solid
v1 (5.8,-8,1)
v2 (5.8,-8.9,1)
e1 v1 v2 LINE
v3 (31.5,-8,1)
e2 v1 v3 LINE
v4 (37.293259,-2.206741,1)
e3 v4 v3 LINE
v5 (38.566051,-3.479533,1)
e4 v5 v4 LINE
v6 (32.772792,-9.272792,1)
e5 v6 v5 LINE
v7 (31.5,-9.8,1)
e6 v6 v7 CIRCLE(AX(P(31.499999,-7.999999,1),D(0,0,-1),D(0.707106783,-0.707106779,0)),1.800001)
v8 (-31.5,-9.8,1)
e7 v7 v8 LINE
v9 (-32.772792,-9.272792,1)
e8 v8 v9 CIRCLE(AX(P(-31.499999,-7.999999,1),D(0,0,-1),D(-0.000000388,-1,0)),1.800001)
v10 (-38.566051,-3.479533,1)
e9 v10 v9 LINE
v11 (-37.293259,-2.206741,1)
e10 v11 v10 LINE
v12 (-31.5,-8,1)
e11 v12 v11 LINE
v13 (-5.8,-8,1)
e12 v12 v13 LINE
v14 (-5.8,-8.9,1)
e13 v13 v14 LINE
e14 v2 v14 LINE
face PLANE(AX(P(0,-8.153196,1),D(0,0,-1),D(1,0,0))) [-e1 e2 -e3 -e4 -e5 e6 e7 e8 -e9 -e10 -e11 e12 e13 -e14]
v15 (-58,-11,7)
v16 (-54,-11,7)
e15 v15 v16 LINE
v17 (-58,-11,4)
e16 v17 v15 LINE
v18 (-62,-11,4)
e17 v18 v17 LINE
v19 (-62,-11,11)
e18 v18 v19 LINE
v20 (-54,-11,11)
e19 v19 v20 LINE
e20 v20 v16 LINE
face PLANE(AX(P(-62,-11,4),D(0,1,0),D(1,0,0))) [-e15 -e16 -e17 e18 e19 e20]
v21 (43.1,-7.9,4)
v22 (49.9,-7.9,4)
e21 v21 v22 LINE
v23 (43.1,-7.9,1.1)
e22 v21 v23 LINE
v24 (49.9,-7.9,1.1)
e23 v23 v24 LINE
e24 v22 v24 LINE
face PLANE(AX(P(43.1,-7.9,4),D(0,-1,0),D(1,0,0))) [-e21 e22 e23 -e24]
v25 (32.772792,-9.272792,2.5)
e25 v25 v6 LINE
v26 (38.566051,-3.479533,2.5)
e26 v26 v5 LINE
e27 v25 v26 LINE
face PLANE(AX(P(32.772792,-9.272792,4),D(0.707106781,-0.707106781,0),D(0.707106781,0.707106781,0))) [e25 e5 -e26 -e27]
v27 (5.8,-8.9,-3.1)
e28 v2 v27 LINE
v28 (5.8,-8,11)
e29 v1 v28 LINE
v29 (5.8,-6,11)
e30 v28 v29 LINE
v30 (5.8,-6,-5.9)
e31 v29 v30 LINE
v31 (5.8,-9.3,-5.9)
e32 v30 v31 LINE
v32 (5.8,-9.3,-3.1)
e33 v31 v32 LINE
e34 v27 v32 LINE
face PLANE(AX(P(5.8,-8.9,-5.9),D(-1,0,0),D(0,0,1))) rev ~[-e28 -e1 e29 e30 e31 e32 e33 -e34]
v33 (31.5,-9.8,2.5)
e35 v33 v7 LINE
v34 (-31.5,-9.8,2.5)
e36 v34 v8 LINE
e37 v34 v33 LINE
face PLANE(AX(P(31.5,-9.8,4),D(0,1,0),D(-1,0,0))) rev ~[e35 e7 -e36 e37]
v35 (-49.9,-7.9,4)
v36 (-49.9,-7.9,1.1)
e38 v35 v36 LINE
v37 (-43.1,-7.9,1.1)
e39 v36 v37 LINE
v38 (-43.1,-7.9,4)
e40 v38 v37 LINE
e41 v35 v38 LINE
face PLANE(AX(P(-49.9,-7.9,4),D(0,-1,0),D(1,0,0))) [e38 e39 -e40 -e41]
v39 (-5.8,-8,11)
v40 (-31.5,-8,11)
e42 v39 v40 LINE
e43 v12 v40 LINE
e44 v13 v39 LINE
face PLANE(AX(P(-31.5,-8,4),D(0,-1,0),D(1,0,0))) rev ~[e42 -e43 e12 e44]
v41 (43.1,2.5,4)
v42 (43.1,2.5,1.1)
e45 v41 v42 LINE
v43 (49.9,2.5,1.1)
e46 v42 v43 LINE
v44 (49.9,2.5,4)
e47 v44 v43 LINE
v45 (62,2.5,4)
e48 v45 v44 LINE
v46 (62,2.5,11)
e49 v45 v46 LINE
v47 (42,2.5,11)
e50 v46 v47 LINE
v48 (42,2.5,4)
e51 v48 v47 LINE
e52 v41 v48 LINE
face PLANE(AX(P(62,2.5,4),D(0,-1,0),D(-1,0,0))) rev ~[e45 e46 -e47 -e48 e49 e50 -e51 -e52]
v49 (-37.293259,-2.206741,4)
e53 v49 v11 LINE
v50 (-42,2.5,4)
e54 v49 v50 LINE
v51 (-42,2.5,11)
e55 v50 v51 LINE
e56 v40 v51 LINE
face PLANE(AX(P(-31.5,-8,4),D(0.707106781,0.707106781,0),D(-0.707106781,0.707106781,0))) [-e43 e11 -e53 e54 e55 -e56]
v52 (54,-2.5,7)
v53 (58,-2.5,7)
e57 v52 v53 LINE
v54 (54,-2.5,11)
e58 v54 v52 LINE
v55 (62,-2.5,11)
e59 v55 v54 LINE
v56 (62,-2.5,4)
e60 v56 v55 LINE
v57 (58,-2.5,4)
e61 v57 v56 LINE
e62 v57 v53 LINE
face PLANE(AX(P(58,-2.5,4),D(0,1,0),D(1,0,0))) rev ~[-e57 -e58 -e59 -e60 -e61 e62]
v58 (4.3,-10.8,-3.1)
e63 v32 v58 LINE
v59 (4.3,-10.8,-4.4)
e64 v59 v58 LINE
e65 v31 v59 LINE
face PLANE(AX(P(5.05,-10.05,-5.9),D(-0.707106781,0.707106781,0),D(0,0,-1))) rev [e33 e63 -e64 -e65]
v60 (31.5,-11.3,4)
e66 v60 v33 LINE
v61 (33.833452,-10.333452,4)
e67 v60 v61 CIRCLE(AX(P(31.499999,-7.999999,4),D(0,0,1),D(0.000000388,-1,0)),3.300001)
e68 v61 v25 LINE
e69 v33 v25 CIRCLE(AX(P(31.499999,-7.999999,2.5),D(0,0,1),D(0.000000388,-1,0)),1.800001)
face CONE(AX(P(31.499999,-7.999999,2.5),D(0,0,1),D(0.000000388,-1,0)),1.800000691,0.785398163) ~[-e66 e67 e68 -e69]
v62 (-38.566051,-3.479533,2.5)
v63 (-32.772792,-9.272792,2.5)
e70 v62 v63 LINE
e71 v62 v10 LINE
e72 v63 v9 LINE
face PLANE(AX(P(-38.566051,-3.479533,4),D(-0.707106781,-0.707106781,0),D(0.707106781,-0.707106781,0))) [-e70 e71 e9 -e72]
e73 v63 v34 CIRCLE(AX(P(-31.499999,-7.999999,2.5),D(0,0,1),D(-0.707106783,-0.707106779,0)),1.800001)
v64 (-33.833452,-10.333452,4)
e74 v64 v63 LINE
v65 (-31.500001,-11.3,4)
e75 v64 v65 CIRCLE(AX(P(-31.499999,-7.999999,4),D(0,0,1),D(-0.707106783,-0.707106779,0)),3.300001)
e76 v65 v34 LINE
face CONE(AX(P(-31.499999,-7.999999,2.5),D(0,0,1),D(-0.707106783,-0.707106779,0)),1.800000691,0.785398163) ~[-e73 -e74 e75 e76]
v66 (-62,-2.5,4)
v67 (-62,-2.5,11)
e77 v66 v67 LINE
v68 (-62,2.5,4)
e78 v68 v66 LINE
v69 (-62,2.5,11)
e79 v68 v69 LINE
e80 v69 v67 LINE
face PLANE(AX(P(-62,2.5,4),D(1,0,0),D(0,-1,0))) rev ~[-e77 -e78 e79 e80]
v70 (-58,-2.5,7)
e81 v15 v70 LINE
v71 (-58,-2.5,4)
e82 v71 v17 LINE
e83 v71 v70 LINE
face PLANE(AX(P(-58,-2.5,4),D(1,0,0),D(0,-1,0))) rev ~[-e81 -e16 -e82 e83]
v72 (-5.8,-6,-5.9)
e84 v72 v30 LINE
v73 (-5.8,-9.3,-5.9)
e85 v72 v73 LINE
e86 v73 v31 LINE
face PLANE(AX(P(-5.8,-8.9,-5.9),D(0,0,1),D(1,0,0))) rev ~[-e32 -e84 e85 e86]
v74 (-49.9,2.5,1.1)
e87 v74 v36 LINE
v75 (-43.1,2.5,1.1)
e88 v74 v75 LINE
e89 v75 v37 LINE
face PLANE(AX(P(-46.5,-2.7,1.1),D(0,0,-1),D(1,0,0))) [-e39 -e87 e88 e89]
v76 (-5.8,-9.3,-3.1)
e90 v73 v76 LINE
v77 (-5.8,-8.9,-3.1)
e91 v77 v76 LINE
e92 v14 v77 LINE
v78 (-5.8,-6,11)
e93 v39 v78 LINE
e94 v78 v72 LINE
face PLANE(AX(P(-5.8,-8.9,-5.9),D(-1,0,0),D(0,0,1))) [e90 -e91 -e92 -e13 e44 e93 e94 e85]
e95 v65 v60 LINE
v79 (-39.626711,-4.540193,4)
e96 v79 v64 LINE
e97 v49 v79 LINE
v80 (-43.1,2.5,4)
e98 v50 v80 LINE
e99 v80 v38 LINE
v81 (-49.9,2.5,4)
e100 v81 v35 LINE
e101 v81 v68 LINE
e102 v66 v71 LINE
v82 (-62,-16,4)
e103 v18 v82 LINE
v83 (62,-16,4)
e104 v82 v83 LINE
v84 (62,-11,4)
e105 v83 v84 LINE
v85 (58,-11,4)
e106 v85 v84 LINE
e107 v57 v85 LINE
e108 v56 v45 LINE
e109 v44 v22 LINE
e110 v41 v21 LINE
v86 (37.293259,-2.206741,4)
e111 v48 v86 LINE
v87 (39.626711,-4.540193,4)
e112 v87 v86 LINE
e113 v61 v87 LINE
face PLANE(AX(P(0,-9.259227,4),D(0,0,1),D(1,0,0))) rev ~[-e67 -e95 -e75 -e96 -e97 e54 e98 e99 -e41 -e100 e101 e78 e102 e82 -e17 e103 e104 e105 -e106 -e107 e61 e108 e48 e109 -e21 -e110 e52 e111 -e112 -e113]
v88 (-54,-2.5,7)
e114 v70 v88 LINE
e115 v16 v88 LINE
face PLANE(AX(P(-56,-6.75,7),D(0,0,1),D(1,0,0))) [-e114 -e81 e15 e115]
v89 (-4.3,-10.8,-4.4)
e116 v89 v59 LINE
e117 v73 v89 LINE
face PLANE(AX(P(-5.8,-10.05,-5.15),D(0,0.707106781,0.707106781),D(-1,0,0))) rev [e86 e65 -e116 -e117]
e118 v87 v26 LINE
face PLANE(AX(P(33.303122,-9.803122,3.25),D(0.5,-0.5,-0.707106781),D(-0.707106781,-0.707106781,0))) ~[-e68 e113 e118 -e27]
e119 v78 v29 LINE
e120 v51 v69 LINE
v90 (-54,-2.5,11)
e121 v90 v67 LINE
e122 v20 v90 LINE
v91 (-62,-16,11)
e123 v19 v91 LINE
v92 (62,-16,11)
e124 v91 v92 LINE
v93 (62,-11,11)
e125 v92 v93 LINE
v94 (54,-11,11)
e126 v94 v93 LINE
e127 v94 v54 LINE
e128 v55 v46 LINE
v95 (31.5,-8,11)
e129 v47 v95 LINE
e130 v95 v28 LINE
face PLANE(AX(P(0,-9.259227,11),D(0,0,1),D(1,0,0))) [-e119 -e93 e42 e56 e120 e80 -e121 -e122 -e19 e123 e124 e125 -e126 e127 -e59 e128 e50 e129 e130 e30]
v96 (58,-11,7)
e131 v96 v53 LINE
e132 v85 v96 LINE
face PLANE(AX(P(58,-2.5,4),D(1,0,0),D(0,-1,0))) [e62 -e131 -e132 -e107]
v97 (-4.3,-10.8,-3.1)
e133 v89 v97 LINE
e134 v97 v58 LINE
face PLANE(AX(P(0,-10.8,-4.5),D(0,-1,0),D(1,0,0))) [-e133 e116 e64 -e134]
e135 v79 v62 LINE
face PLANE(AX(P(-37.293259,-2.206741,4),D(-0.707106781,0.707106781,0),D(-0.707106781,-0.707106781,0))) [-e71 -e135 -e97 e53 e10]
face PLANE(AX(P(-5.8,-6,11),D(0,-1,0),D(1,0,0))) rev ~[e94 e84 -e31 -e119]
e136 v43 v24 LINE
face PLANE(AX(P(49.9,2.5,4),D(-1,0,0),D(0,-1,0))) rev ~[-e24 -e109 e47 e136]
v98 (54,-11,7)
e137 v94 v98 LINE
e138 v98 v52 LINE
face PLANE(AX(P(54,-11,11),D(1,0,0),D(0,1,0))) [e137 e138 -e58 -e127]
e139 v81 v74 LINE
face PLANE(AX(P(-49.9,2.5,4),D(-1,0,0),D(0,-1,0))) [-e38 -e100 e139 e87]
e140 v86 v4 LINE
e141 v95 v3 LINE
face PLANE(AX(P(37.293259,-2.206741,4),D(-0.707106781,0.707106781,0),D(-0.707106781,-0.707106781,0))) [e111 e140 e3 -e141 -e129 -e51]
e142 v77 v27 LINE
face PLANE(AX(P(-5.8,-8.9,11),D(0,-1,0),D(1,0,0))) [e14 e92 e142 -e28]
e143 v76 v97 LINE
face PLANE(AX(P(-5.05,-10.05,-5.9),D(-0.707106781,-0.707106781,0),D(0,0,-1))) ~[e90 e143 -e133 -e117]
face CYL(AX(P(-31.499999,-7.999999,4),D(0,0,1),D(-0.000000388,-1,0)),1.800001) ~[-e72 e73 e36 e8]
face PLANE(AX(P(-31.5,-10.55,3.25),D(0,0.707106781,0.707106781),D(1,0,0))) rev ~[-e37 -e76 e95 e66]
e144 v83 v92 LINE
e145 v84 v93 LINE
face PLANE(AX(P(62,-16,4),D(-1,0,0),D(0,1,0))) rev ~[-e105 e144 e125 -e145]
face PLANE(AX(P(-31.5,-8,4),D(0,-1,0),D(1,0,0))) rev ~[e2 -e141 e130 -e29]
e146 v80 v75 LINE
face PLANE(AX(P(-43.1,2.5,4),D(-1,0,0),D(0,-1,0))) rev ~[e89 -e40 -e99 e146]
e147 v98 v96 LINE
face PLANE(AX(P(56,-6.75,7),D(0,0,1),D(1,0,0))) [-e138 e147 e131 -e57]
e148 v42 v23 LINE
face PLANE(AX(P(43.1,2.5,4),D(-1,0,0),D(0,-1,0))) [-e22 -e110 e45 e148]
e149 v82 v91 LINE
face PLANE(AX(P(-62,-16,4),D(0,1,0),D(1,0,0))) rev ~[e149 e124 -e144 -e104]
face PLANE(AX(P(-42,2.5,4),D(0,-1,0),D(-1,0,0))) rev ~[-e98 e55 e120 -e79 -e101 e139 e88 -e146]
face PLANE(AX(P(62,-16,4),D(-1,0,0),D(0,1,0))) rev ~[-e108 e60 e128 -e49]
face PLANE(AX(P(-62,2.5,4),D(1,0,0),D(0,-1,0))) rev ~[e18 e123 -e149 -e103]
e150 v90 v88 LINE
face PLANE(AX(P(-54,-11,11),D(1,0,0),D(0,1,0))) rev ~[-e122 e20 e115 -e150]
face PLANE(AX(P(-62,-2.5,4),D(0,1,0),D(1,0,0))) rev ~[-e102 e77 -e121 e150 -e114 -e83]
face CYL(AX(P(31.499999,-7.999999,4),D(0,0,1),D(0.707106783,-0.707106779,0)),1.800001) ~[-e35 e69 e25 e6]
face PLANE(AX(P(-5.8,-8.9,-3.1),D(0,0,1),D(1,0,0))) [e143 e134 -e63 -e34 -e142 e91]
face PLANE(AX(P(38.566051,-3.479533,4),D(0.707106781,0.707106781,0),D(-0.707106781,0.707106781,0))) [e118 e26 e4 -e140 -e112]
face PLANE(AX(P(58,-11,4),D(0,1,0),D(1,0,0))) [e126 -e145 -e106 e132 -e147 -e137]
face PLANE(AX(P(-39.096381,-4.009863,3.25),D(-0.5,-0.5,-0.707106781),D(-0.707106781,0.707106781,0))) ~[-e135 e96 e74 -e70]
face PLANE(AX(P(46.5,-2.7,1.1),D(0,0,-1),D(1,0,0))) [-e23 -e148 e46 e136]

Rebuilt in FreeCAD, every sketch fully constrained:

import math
import FreeCAD as App
import Part
import Sketcher
from FreeCAD import Vector


def edges_at(feature, points):
    """Names of the edges that pass closest to the given points."""
    edges = feature.Shape.Edges
    near = lambda p: min(range(len(edges)), key=lambda i: edges[i].distToShape(Part.Vertex(*p))[0])
    return sorted({f"Edge{near(p) + 1}" for p in points})


def add_polygon(sketch, points):
    """Adds a closed chain of lines whose ends are joined by coincident constraints."""
    first, n = sketch.GeometryCount, len(points)
    for a, b in zip(points, points[1:] + points[:1]):
        sketch.addGeometry(Part.LineSegment(App.Vector(*a, 0), App.Vector(*b, 0)), False)
    for i in range(n):
        sketch.addConstraint(Sketcher.Constraint("Coincident", first + i, 2, first + (i + 1) % n, 1))

doc = App.newDocument("Part")
params = doc.addObject("Spreadsheet::Sheet", "Params")
for row, (alias, value) in enumerate([
    ("sketch1_width", "124 mm"),
    ("sketch1_width2", "20 mm"),
    ("sketch1_width3", "63 mm"),
    ("sketch1_height", "18.5 mm"),
    ("pad1_length", "7 mm"),
    ("sketch2_radius", "1.800001 mm"),
    ("sketch2_width", "63 mm"),
    ("pad2_length", "3 mm"),
    ("chamfer_size", "1.5 mm"),
    ("sketch3_width", "4 mm"),
    ("sketch3_height", "8.5 mm"),
    ("sketch4_width", "4 mm"),
    ("sketch4_height", "8.5 mm"),
    ("pocket2_length", "4 mm"),
    ("sketch5_width", "11.6 mm"),
    ("sketch5_height", "2.9 mm"),
    ("pad3_length", "16.9 mm"),
    ("sketch6_width", "11.6 mm"),
    ("sketch6_height", "2.8 mm"),
    ("pad4_length", "1.9 mm"),
    ("chamfer2_size", "1.5 mm"),
    ("sketch7_width", "6.8 mm"),
    ("sketch7_height", "10.4 mm"),
    ("pad5_length", "2.9 mm"),
], start=1):
    params.set(f"A{row}", alias)
    params.set(f"B{row}", "=" + value)
    params.setAlias(f"B{row}", alias)

body = doc.addObject("PartDesign::Body", "Body")

sketch1 = doc.addObject("Sketcher::SketchObject", "Sketch")
body.addObject(sketch1)
sketch1.AttachmentSupport = (doc.XY_Plane, [""])
sketch1.MapMode = "FlatFace"
sketch1.AttachmentOffset = App.Placement(Vector(0, 0, 4), App.Rotation())
add_polygon(sketch1, [(-62, 2), (-62, -16), (62, -16), (62, 2), (42, 2), (32, -8), (-32, -8), (-42, 2)])
sketch1.addConstraint([
    Sketcher.Constraint("Vertical", 0),
    Sketcher.Constraint("Horizontal", 1),
    Sketcher.Constraint("Vertical", 2),
    Sketcher.Constraint("Horizontal", 3),
    Sketcher.Constraint("Horizontal", 5),
    Sketcher.Constraint("Horizontal", 7),
    Sketcher.Constraint("Symmetric", 3, 2, 6, 2, -2),
    Sketcher.Constraint("Perpendicular", 4, 6),
    Sketcher.Constraint("Equal", 3, 7),
    Sketcher.Constraint("Equal", 4, 6),
    Sketcher.Constraint("DistanceX", 1, 1, 1, 2, 124.0),
    Sketcher.Constraint("DistanceX", 3, 2, 3, 1, 20.0),
    Sketcher.Constraint("DistanceX", 5, 2, 5, 1, 63.0),
    Sketcher.Constraint("DistanceY", 0, 2, 0, 1, 18.5),
    Sketcher.Constraint("DistanceY", 0, 2, -1, 1, 16.0),
])
sketch1.setExpression("Constraints[18]", "Params.sketch1_width")
sketch1.setExpression("Constraints[19]", "Params.sketch1_width2")
sketch1.setExpression("Constraints[20]", "Params.sketch1_width3")
sketch1.setExpression("Constraints[21]", "Params.sketch1_height")
pad1 = doc.addObject("PartDesign::Pad", "Pad")
body.addObject(pad1)
pad1.Profile = sketch1
pad1.setExpression("Length", "Params.pad1_length")

sketch2 = doc.addObject("Sketcher::SketchObject", "Sketch001")
body.addObject(sketch2)
sketch2.AttachmentSupport = (doc.XY_Plane, [""])
sketch2.MapMode = "FlatFace"
sketch2.AttachmentOffset = App.Placement(Vector(0, 0, 4), App.Rotation())
sketch2.addGeometry([
    Part.LineSegment(Vector(-31.5, -8, 0), Vector(31.5, -8, 0)),
    Part.LineSegment(Vector(31.5, -8, 0), Vector(37.3, -2.2, 0)),
    Part.LineSegment(Vector(37.3, -2.2, 0), Vector(38.6, -3.5, 0)),
    Part.LineSegment(Vector(38.6, -3.5, 0), Vector(32.8, -9.3, 0)),
    Part.ArcOfCircle(Part.Circle(Vector(31.5, -8, 0), Vector(0, 0, 1), 1.8), math.radians(-90), math.radians(-45)),
    Part.LineSegment(Vector(31.5, -9.8, 0), Vector(-31.5, -9.8, 0)),
    Part.ArcOfCircle(Part.Circle(Vector(-31.5, -8, 0), Vector(0, 0, 1), 1.8), math.radians(-135), math.radians(-90)),
    Part.LineSegment(Vector(-32.8, -9.3, 0), Vector(-38.6, -3.5, 0)),
    Part.LineSegment(Vector(-38.6, -3.5, 0), Vector(-37.3, -2.2, 0)),
    Part.LineSegment(Vector(-37.3, -2.2, 0), Vector(-31.5, -8, 0)),
], False)
sketch2.addConstraint([
    Sketcher.Constraint("Coincident", 0, 2, 1, 1),
    Sketcher.Constraint("Coincident", 1, 2, 2, 1),
    Sketcher.Constraint("Coincident", 2, 2, 3, 1),
    Sketcher.Constraint("Tangent", 3, 2, 4, 2),
    Sketcher.Constraint("Tangent", 4, 1, 5, 1),
    Sketcher.Constraint("Tangent", 5, 2, 6, 2),
    Sketcher.Constraint("Tangent", 6, 1, 7, 1),
    Sketcher.Constraint("Coincident", 7, 2, 8, 1),
    Sketcher.Constraint("Coincident", 8, 2, 9, 1),
    Sketcher.Constraint("Coincident", 9, 2, 0, 1),
    Sketcher.Constraint("Horizontal", 0),
    Sketcher.Constraint("Horizontal", 5),
    Sketcher.Constraint("Coincident", 0, 2, 4, 3),
    Sketcher.Constraint("Coincident", 9, 2, 6, 3),
    Sketcher.Constraint("Symmetric", 3, 2, 6, 1, -2),
    Sketcher.Constraint("Symmetric", 1, 2, 8, 2, -2),
    Sketcher.Constraint("Perpendicular", 1, 2),
    Sketcher.Constraint("Perpendicular", 2, 3),
    Sketcher.Constraint("Perpendicular", 3, 7),
    Sketcher.Constraint("Perpendicular", 7, 8),
    Sketcher.Constraint("Radius", 4, 1.800001),
    Sketcher.Constraint("DistanceX", 0, 1, 0, 2, 63.0),
    Sketcher.Constraint("DistanceY", 4, 3, -1, 1, 7.999999),
    Sketcher.Constraint("DistanceX", -1, 1, 1, 2, 37.293259),
])
sketch2.setExpression("Constraints[20]", "Params.sketch2_radius")
sketch2.setExpression("Constraints[21]", "Params.sketch2_width")
pad2 = doc.addObject("PartDesign::Pad", "Pad001")
body.addObject(pad2)
pad2.Profile = sketch2
pad2.setExpression("Length", "Params.pad2_length")
pad2.Reversed = True
doc.recompute()

chamfer = doc.addObject("PartDesign::Chamfer", "Chamfer")
body.addObject(chamfer)
chamfer.Base = (pad2, edges_at(pad2, [(-35.669, -6.376, 4)]))
chamfer.setExpression("Size", "Params.chamfer_size")

sketch3 = doc.addObject("Sketcher::SketchObject", "Sketch002")
body.addObject(sketch3)
sketch3.AttachmentSupport = (doc.XY_Plane, [""])
sketch3.MapMode = "FlatFace"
sketch3.AttachmentOffset = App.Placement(Vector(0, 0, 4), App.Rotation())
add_polygon(sketch3, [(-62, -11), (-62, -2.5), (-58, -2.5), (-58, -11)])
add_polygon(sketch3, [(58, -11), (58, -2.5), (62, -2.5), (62, -11)])
sketch3.addConstraint([
    Sketcher.Constraint("Vertical", 0),
    Sketcher.Constraint("Horizontal", 1),
    Sketcher.Constraint("Vertical", 2),
    Sketcher.Constraint("Horizontal", 3),
    Sketcher.Constraint("Vertical", 4),
    Sketcher.Constraint("Horizontal", 5),
    Sketcher.Constraint("Vertical", 6),
    Sketcher.Constraint("Horizontal", 7),
    Sketcher.Constraint("Symmetric", 1, 2, 4, 2, -2),
    Sketcher.Constraint("Symmetric", 3, 2, 6, 2, -2),
    Sketcher.Constraint("DistanceX", 1, 1, 1, 2, 4.0),
    Sketcher.Constraint("DistanceY", 0, 1, 0, 2, 8.5),
    Sketcher.Constraint("DistanceX", 0, 2, -1, 1, 62.0),
    Sketcher.Constraint("DistanceY", 2, 2, -1, 1, 11.0),
])
sketch3.setExpression("Constraints[18]", "Params.sketch3_width")
sketch3.setExpression("Constraints[19]", "Params.sketch3_height")
pocket1 = doc.addObject("PartDesign::Pocket", "Pocket")
body.addObject(pocket1)
pocket1.Profile = sketch3
pocket1.Type = "ThroughAll"
pocket1.Reversed = True

sketch4 = doc.addObject("Sketcher::SketchObject", "Sketch003")
body.addObject(sketch4)
sketch4.AttachmentSupport = (doc.XY_Plane, [""])
sketch4.MapMode = "FlatFace"
sketch4.AttachmentOffset = App.Placement(Vector(0, 0, 11), App.Rotation())
add_polygon(sketch4, [(-58, -2.5), (-58, -11), (-54, -11), (-54, -2.5)])
add_polygon(sketch4, [(54, -2.5), (54, -11), (58, -11), (58, -2.5)])
sketch4.addConstraint([
    Sketcher.Constraint("Vertical", 0),
    Sketcher.Constraint("Horizontal", 1),
    Sketcher.Constraint("Vertical", 2),
    Sketcher.Constraint("Horizontal", 3),
    Sketcher.Constraint("Vertical", 4),
    Sketcher.Constraint("Horizontal", 5),
    Sketcher.Constraint("Vertical", 6),
    Sketcher.Constraint("Horizontal", 7),
    Sketcher.Constraint("Symmetric", 1, 2, 4, 2, -2),
    Sketcher.Constraint("Symmetric", 3, 2, 6, 2, -2),
    Sketcher.Constraint("DistanceX", 1, 1, 1, 2, 4.0),
    Sketcher.Constraint("DistanceY", 0, 2, 0, 1, 8.5),
    Sketcher.Constraint("DistanceX", 0, 2, -1, 1, 58.0),
    Sketcher.Constraint("DistanceY", 0, 2, -1, 1, 11.0),
])
sketch4.setExpression("Constraints[18]", "Params.sketch4_width")
sketch4.setExpression("Constraints[19]", "Params.sketch4_height")
pocket2 = doc.addObject("PartDesign::Pocket", "Pocket001")
body.addObject(pocket2)
pocket2.Profile = sketch4
pocket2.setExpression("Length", "Params.pocket2_length")

sketch5 = doc.addObject("Sketcher::SketchObject", "Sketch004")
body.addObject(sketch5)
sketch5.AttachmentSupport = (doc.XY_Plane, [""])
sketch5.MapMode = "FlatFace"
sketch5.AttachmentOffset = App.Placement(Vector(0, 0, 11), App.Rotation())
add_polygon(sketch5, [(-5.8, -6), (-5.8, -8.9), (5.8, -8.9), (5.8, -6)])
sketch5.addConstraint([
    Sketcher.Constraint("Vertical", 0),
    Sketcher.Constraint("Horizontal", 1),
    Sketcher.Constraint("Vertical", 2),
    Sketcher.Constraint("Horizontal", 3),
    Sketcher.Constraint("DistanceX", 1, 1, 1, 2, 11.6),
    Sketcher.Constraint("DistanceY", 0, 2, 0, 1, 2.9),
    Sketcher.Constraint("DistanceY", 2, 2, -1, 1, 6.0),
    Sketcher.Constraint("DistanceX", 0, 2, -1, 1, 5.8),
])
sketch5.setExpression("Constraints[8]", "Params.sketch5_width")
sketch5.setExpression("Constraints[9]", "Params.sketch5_height")
pad3 = doc.addObject("PartDesign::Pad", "Pad002")
body.addObject(pad3)
pad3.Profile = sketch5
pad3.setExpression("Length", "Params.pad3_length")
pad3.Reversed = True

sketch6 = doc.addObject("Sketcher::SketchObject", "Sketch005")
body.addObject(sketch6)
sketch6.AttachmentSupport = (doc.XZ_Plane, [""])
sketch6.MapMode = "FlatFace"
sketch6.AttachmentOffset = App.Placement(Vector(0, 0, 8.9), App.Rotation())
add_polygon(sketch6, [(-5.8, -3.1), (-5.8, -5.9), (5.8, -5.9), (5.8, -3.1)])
sketch6.addConstraint([
    Sketcher.Constraint("Vertical", 0),
    Sketcher.Constraint("Horizontal", 1),
    Sketcher.Constraint("Vertical", 2),
    Sketcher.Constraint("Horizontal", 3),
    Sketcher.Constraint("DistanceX", 1, 1, 1, 2, 11.6),
    Sketcher.Constraint("DistanceY", 0, 2, 0, 1, 2.8),
    Sketcher.Constraint("DistanceX", 0, 2, -1, 1, 5.8),
    Sketcher.Constraint("DistanceY", 0, 2, -1, 1, 5.9),
])
sketch6.setExpression("Constraints[8]", "Params.sketch6_width")
sketch6.setExpression("Constraints[9]", "Params.sketch6_height")
pad4 = doc.addObject("PartDesign::Pad", "Pad003")
body.addObject(pad4)
pad4.Profile = sketch6
pad4.setExpression("Length", "Params.pad4_length")
doc.recompute()

chamfer2 = doc.addObject("PartDesign::Chamfer", "Chamfer001")
body.addObject(chamfer2)
chamfer2.Base = (pad4, edges_at(pad4, [(0, -10.8, -5.9), (-5.8, -10.8, -4.5), (5.8, -10.8, -4.5)]))
chamfer2.setExpression("Size", "Params.chamfer2_size")

sketch7 = doc.addObject("Sketcher::SketchObject", "Sketch006")
body.addObject(sketch7)
sketch7.AttachmentSupport = (doc.XY_Plane, [""])
sketch7.MapMode = "FlatFace"
sketch7.AttachmentOffset = App.Placement(Vector(0, 0, 4), App.Rotation())
add_polygon(sketch7, [(-50, -8), (-50, 2), (-43, 2), (-43, -8)])
add_polygon(sketch7, [(43, -8), (43, 2), (50, 2), (50, -8)])
sketch7.addConstraint([
    Sketcher.Constraint("Vertical", 0),
    Sketcher.Constraint("Horizontal", 1),
    Sketcher.Constraint("Vertical", 2),
    Sketcher.Constraint("Horizontal", 3),
    Sketcher.Constraint("Vertical", 4),
    Sketcher.Constraint("Horizontal", 5),
    Sketcher.Constraint("Vertical", 6),
    Sketcher.Constraint("Horizontal", 7),
    Sketcher.Constraint("Symmetric", 1, 2, 4, 2, -2),
    Sketcher.Constraint("Symmetric", 3, 2, 6, 2, -2),
    Sketcher.Constraint("DistanceX", 1, 1, 1, 2, 6.8),
    Sketcher.Constraint("DistanceY", 0, 1, 0, 2, 10.4),
    Sketcher.Constraint("DistanceX", 0, 2, 4, 2, 93.0),
    Sketcher.Constraint("DistanceY", -1, 1, 0, 2, 2.5),
])
sketch7.setExpression("Constraints[18]", "Params.sketch7_width")
sketch7.setExpression("Constraints[19]", "Params.sketch7_height")
pad5 = doc.addObject("PartDesign::Pad", "Pad004")
body.addObject(pad5)
pad5.Profile = sketch7
pad5.setExpression("Length", "Params.pad5_length")
pad5.Reversed = True

doc.recompute()
